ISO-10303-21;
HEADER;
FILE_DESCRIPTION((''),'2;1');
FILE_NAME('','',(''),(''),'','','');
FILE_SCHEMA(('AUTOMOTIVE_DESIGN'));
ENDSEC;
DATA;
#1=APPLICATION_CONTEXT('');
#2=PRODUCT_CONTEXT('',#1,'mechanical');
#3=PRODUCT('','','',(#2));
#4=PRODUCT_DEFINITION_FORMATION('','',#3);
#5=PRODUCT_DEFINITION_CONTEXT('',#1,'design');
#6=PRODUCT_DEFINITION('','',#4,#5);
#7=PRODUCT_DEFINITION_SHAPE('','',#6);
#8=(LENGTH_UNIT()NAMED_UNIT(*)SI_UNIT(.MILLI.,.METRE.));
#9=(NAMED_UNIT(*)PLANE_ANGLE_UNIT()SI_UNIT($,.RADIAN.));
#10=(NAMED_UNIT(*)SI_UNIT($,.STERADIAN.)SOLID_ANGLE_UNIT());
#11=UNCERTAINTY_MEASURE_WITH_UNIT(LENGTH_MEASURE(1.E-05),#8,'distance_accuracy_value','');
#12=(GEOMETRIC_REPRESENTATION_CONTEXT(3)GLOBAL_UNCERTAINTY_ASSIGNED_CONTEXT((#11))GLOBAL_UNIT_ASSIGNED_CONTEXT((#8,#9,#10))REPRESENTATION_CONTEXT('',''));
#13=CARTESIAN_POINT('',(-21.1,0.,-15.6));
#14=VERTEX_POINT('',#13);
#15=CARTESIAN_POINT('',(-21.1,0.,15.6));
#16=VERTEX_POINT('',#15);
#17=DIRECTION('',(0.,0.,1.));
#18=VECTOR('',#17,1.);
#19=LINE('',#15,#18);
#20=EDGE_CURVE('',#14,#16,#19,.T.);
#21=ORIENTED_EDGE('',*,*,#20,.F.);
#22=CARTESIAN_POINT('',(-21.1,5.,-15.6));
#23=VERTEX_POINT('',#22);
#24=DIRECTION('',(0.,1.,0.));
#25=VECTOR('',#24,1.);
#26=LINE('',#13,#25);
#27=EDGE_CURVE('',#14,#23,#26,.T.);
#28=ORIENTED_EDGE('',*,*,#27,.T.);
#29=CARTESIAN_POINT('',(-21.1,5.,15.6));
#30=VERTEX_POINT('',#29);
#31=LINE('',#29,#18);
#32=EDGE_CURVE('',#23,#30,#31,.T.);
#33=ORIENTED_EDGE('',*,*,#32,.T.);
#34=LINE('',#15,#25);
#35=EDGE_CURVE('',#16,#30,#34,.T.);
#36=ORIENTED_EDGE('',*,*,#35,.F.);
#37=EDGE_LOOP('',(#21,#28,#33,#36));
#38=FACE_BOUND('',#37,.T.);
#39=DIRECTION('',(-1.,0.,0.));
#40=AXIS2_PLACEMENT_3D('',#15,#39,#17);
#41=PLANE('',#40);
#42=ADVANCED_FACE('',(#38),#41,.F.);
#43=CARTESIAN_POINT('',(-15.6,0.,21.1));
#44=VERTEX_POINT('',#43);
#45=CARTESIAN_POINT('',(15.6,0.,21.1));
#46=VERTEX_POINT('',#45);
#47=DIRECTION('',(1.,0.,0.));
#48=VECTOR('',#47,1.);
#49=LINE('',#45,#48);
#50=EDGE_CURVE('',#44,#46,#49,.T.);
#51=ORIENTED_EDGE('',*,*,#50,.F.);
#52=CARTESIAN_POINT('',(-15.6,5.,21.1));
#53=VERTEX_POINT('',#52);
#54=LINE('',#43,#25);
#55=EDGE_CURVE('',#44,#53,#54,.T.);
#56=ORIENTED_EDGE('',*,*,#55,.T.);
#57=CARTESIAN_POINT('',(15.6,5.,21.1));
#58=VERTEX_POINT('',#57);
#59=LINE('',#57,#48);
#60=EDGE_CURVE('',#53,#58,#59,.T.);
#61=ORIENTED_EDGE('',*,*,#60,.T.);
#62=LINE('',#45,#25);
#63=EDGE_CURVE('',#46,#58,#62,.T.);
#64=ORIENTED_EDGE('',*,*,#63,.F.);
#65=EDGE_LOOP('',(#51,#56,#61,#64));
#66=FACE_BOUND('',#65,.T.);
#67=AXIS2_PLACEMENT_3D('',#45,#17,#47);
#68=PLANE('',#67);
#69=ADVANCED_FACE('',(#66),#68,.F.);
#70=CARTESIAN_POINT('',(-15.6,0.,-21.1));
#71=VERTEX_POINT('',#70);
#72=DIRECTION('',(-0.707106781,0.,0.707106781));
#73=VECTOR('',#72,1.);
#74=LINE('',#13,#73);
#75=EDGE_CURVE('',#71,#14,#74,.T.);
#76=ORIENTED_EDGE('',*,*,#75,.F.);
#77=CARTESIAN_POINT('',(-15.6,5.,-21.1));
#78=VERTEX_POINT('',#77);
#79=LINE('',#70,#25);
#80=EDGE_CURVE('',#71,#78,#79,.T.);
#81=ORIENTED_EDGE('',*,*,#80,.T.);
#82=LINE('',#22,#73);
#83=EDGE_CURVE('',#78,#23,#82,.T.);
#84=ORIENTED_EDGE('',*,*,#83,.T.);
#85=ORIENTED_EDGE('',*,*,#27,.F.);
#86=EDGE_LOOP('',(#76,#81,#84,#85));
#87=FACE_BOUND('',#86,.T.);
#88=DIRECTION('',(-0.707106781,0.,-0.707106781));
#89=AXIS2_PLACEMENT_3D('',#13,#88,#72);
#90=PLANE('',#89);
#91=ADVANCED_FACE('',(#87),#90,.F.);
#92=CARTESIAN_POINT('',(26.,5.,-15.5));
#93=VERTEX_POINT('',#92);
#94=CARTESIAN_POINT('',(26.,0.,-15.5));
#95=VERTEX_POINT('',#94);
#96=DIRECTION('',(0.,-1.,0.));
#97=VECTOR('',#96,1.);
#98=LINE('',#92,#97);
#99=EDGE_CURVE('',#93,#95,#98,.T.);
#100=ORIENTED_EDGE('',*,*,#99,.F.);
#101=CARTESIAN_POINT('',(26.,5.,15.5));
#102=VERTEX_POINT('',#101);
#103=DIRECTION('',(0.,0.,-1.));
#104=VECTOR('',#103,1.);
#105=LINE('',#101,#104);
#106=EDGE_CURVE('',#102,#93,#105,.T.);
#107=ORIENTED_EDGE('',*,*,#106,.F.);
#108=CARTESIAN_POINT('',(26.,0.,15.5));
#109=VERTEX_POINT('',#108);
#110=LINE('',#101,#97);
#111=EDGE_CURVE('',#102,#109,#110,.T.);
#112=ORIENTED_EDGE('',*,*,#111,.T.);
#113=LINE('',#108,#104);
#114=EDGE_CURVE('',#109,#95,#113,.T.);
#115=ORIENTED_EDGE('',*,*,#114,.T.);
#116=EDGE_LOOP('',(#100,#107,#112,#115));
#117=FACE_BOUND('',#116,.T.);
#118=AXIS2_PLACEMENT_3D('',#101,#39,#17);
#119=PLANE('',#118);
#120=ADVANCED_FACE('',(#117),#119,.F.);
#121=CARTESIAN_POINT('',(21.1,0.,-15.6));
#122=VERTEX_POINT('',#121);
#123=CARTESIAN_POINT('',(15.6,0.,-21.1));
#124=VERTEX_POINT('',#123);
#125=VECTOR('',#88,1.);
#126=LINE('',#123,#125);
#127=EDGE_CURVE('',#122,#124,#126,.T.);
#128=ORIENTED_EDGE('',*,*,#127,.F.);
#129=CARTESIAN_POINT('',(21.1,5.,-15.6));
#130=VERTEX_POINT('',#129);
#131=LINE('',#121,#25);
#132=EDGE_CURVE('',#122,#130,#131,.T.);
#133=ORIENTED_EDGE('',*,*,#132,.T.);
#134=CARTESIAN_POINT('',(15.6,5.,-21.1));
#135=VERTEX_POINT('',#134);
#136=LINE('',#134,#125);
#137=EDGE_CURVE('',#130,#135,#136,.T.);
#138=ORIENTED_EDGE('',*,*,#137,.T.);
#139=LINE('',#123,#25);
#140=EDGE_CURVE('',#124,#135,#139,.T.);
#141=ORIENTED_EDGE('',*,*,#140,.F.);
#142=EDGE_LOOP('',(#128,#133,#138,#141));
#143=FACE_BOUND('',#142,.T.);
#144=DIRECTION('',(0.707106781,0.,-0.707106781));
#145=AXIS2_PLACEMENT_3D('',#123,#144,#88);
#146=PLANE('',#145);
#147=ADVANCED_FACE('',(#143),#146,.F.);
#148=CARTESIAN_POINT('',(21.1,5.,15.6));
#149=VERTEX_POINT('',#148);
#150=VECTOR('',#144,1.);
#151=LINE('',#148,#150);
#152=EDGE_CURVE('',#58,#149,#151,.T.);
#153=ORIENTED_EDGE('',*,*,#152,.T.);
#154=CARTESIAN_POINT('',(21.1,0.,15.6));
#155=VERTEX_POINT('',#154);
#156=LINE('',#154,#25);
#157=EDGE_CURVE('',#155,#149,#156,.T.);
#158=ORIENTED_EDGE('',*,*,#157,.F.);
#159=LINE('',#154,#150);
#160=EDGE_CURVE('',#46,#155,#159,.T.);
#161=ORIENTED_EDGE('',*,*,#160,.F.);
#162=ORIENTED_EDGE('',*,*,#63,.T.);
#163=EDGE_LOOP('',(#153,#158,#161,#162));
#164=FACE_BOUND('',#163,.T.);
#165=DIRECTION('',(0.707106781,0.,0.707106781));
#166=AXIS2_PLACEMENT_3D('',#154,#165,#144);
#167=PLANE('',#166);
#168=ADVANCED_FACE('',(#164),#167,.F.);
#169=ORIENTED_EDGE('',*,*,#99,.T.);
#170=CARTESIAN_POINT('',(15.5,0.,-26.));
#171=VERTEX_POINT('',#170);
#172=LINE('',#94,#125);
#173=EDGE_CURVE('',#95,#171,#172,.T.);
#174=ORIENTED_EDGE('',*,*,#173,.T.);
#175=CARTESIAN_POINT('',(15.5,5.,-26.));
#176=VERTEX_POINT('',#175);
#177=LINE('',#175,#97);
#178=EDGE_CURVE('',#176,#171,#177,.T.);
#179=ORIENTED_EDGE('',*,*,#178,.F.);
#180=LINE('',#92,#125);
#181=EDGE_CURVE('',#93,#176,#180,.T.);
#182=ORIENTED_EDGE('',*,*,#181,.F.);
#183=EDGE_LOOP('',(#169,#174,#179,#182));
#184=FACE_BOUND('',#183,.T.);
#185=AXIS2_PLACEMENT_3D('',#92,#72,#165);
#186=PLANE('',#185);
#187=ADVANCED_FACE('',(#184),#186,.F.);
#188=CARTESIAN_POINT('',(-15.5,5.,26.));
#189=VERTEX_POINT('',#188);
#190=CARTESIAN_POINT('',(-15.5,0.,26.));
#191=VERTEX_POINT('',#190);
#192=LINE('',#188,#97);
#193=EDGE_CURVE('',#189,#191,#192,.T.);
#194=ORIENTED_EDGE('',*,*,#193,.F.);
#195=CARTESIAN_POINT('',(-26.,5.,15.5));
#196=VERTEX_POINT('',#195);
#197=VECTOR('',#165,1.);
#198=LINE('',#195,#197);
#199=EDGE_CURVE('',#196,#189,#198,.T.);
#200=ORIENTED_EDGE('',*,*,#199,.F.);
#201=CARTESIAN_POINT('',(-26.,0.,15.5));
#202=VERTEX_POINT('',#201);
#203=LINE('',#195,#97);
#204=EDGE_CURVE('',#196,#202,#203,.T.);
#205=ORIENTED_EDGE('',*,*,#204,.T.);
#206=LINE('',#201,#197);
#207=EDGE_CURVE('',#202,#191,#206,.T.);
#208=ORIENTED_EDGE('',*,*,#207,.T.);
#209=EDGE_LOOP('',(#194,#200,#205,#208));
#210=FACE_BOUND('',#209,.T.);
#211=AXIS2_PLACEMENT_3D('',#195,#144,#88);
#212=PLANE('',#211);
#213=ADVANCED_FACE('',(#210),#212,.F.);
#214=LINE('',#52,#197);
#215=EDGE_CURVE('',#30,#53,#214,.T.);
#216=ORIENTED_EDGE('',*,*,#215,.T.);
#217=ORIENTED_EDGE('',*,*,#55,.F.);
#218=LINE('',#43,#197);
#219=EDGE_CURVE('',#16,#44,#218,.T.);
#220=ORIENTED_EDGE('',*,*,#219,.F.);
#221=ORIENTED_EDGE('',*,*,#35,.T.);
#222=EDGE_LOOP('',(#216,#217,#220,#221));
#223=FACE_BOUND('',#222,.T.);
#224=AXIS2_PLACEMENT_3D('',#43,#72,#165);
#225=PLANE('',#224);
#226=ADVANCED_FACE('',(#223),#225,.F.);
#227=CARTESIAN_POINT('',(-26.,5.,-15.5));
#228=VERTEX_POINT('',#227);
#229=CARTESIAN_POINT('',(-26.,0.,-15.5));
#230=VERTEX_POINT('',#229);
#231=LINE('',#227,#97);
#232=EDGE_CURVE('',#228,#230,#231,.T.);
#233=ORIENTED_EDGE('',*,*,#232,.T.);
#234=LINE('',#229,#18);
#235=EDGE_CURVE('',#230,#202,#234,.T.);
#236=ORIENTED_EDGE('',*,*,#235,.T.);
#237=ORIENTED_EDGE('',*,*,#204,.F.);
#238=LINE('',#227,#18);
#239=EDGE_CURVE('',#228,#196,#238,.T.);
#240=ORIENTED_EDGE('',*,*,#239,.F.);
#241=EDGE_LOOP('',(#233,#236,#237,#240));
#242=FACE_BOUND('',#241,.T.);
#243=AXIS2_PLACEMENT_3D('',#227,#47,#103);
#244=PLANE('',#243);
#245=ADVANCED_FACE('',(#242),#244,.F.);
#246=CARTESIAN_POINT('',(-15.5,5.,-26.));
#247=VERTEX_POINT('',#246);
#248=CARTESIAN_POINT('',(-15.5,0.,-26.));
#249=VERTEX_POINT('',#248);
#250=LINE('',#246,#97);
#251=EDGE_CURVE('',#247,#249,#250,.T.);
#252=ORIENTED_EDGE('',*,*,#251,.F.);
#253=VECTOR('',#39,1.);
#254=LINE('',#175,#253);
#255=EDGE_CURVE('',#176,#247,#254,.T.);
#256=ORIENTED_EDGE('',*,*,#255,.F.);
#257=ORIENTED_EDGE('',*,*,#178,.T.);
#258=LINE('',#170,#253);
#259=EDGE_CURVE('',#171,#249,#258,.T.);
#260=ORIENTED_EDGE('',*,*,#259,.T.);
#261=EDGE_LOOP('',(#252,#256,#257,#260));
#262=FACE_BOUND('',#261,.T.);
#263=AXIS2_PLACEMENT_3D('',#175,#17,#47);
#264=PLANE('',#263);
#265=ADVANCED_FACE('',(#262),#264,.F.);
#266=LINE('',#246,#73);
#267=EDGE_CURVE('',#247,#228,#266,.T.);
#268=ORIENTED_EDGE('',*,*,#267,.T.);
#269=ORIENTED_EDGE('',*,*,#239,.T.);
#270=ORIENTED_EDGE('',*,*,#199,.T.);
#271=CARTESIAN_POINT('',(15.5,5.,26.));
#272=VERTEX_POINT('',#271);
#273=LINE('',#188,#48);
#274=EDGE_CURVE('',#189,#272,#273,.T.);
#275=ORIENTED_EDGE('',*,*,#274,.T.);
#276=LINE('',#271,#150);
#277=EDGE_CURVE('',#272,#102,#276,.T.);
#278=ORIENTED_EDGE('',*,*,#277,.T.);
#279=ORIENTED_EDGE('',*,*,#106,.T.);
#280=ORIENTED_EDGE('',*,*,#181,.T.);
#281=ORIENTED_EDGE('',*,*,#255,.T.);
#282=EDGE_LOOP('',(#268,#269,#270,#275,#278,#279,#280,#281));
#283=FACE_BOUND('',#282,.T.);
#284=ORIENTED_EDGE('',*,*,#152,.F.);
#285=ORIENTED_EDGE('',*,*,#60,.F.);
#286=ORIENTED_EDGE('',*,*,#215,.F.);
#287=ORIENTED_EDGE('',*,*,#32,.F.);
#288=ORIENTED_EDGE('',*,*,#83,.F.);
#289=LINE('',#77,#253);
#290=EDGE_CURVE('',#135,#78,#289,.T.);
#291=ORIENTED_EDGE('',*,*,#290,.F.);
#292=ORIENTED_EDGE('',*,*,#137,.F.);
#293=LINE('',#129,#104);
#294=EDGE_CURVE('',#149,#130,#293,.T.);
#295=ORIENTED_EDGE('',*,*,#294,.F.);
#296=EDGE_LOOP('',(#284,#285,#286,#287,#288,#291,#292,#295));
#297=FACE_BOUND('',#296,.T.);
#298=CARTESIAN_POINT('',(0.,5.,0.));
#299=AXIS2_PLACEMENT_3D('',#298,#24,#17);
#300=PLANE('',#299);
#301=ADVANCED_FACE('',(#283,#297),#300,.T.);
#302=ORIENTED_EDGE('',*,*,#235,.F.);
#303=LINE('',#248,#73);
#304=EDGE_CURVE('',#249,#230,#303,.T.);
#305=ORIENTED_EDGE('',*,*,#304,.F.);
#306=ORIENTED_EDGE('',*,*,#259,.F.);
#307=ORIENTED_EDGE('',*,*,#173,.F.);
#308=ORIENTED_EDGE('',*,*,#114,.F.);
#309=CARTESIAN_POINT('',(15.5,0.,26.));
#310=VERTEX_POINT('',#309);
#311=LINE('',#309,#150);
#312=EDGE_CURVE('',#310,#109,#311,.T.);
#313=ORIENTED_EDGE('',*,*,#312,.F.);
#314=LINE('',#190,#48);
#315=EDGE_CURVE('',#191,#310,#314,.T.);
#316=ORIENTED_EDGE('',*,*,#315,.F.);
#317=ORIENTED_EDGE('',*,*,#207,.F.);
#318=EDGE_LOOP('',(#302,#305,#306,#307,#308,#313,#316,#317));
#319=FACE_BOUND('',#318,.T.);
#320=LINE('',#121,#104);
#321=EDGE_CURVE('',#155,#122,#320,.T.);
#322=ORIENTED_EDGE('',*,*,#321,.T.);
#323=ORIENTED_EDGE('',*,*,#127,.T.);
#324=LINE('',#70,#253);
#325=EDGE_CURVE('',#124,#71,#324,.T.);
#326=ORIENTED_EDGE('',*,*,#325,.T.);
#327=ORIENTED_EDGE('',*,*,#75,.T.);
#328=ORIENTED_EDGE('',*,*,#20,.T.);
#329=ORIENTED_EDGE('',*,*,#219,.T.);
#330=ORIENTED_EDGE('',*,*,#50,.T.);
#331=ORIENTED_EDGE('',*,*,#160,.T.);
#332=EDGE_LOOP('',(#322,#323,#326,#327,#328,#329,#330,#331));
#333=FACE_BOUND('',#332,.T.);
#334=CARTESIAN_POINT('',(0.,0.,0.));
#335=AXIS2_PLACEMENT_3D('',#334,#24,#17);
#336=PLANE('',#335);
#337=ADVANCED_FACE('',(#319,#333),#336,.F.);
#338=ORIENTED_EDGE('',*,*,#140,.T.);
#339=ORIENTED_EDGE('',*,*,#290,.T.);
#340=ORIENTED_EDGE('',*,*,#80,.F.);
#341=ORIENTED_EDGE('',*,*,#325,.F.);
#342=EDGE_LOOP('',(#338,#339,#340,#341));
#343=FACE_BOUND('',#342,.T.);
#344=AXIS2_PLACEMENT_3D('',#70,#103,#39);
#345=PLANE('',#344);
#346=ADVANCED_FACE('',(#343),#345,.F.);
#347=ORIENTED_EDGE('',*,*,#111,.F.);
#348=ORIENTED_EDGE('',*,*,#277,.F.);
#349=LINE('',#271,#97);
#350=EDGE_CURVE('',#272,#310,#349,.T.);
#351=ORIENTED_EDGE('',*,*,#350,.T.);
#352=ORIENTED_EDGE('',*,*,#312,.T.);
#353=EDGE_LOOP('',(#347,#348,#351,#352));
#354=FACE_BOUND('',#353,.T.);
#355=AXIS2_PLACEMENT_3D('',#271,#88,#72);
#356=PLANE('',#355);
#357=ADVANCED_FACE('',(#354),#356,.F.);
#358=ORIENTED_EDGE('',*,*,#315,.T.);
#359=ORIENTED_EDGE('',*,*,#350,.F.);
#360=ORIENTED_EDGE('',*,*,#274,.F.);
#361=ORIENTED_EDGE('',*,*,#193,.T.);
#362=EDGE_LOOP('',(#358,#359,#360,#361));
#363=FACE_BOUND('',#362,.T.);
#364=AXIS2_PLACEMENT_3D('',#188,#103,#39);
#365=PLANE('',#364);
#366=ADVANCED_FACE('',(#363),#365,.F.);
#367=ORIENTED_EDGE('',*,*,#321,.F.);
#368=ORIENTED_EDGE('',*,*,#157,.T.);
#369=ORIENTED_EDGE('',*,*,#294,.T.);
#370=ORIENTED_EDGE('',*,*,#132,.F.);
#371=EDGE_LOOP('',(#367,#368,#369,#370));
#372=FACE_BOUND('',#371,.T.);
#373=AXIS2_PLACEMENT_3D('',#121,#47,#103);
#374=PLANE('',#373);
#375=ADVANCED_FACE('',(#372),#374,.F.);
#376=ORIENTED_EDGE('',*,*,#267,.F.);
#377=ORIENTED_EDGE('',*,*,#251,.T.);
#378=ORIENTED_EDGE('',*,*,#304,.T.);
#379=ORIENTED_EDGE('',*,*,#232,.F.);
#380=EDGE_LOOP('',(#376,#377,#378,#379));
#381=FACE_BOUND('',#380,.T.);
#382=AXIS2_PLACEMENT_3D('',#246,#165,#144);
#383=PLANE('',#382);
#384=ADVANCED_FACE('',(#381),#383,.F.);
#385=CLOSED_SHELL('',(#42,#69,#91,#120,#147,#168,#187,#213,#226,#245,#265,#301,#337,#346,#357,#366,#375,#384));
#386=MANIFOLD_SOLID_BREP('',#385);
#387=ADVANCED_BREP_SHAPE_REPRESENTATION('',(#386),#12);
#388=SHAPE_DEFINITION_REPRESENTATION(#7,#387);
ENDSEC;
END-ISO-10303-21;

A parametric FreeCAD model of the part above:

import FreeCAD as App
import Part
import Sketcher

doc = App.newDocument("Part")
body = doc.addObject("PartDesign::Body", "Body")

# Sketch on XZ plane
sketch1 = body.newObject("Sketcher::SketchObject", "Sketch")
sketch1.AttachmentSupport = (doc.getObject("XZ_Plane"), [""])
sketch1.MapMode = "FlatFace"
sketch1.addGeometry([
    Part.LineSegment(App.Vector(-16, 26, 0), App.Vector(16, 26, 0)),  # 0
    Part.LineSegment(App.Vector(16, 26, 0), App.Vector(26, 16, 0)),  # 1
    Part.LineSegment(App.Vector(26, 16, 0), App.Vector(26, -16, 0)),  # 2
    Part.LineSegment(App.Vector(26, -16, 0), App.Vector(16, -26, 0)),  # 3
    Part.LineSegment(App.Vector(16, -26, 0), App.Vector(-16, -26, 0)),  # 4
    Part.LineSegment(App.Vector(-16, -26, 0), App.Vector(-26, -16, 0)),  # 5
    Part.LineSegment(App.Vector(-26, -16, 0), App.Vector(-26, 16, 0)),  # 6
    Part.LineSegment(App.Vector(-26, 16, 0), App.Vector(-16, 26, 0)),  # 7
], False)
sketch1.addConstraint([
    Sketcher.Constraint("Coincident", 0, 2, 1, 1),
    Sketcher.Constraint("Coincident", 1, 2, 2, 1),
    Sketcher.Constraint("Coincident", 2, 2, 3, 1),
    Sketcher.Constraint("Coincident", 3, 2, 4, 1),
    Sketcher.Constraint("Coincident", 4, 2, 5, 1),
    Sketcher.Constraint("Coincident", 5, 2, 6, 1),
    Sketcher.Constraint("Coincident", 6, 2, 7, 1),
    Sketcher.Constraint("Coincident", 7, 2, 0, 1),
    Sketcher.Constraint("Horizontal", 0),
    Sketcher.Constraint("Vertical", 2),
    Sketcher.Constraint("Horizontal", 4),
    Sketcher.Constraint("Vertical", 6),
    Sketcher.Constraint("Symmetric", 0, 2, 4, 2, -1, 1),
    Sketcher.Constraint("Symmetric", 1, 2, 5, 2, -1, 1),
    Sketcher.Constraint("Perpendicular", 1, 3),
    Sketcher.Constraint("Perpendicular", 5, 7),
    Sketcher.Constraint("Horizontal", 2, 2, 5, 2),
    Sketcher.Constraint("Horizontal", 1, 2, 6, 2),
    Sketcher.Constraint("Vertical", 0, 2, 3, 2),
    Sketcher.Constraint("Equal", 4, 2),
    Sketcher.Constraint("DistanceX", 0, 1, 0, 2, 31.0),
    Sketcher.Constraint("DistanceY", -1, 1, 0, 2, 26.0),
])
pad1 = body.newObject("PartDesign::Pad", "Pad")
pad1.Profile = sketch1
pad1.Length = 5
pad1.Reversed = True

# Sketch on XZ plane
sketch2 = body.newObject("Sketcher::SketchObject", "Sketch001")
sketch2.AttachmentSupport = (doc.getObject("XZ_Plane"), [""])
sketch2.MapMode = "FlatFace"
sketch2.AttachmentOffset = App.Placement(App.Vector(0, 0, -5), App.Rotation())
sketch2.addGeometry([
    Part.LineSegment(App.Vector(-21, -16, 0), App.Vector(-21, 16, 0)),  # 0
    Part.LineSegment(App.Vector(-21, 16, 0), App.Vector(-16, 21, 0)),  # 1
    Part.LineSegment(App.Vector(-16, 21, 0), App.Vector(16, 21, 0)),  # 2
    Part.LineSegment(App.Vector(16, 21, 0), App.Vector(21, 16, 0)),  # 3
    Part.LineSegment(App.Vector(21, 16, 0), App.Vector(21, -16, 0)),  # 4
    Part.LineSegment(App.Vector(21, -16, 0), App.Vector(16, -21, 0)),  # 5
    Part.LineSegment(App.Vector(16, -21, 0), App.Vector(-16, -21, 0)),  # 6
    Part.LineSegment(App.Vector(-16, -21, 0), App.Vector(-21, -16, 0)),  # 7
], False)
sketch2.addConstraint([
    Sketcher.Constraint("Coincident", 0, 2, 1, 1),
    Sketcher.Constraint("Coincident", 1, 2, 2, 1),
    Sketcher.Constraint("Coincident", 2, 2, 3, 1),
    Sketcher.Constraint("Coincident", 3, 2, 4, 1),
    Sketcher.Constraint("Coincident", 4, 2, 5, 1),
    Sketcher.Constraint("Coincident", 5, 2, 6, 1),
    Sketcher.Constraint("Coincident", 6, 2, 7, 1),
    Sketcher.Constraint("Coincident", 7, 2, 0, 1),
    Sketcher.Constraint("Vertical", 0),
    Sketcher.Constraint("Horizontal", 2),
    Sketcher.Constraint("Vertical", 4),
    Sketcher.Constraint("Horizontal", 6),
    Sketcher.Constraint("Symmetric", 0, 2, 4, 2, -1, 1),
    Sketcher.Constraint("Symmetric", 1, 2, 5, 2, -1, 1),
    Sketcher.Constraint("Perpendicular", 1, 3),
    Sketcher.Constraint("Perpendicular", 5, 7),
    Sketcher.Constraint("Horizontal", 0, 2, 3, 2),
    Sketcher.Constraint("Horizontal", 4, 2, 7, 2),
    Sketcher.Constraint("Vertical", 2, 2, 5, 2),
    Sketcher.Constraint("Equal", 6, 0),
    Sketcher.Constraint("DistanceX", 2, 1, 2, 2, 31.2),
    Sketcher.Constraint("DistanceX", 0, 2, -1, 1, 21.1),
])
pocket1 = body.newObject("PartDesign::Pocket", "Pocket")
pocket1.Profile = sketch2
pocket1.Length = 5
pocket1.Reversed = True

doc.recompute()
